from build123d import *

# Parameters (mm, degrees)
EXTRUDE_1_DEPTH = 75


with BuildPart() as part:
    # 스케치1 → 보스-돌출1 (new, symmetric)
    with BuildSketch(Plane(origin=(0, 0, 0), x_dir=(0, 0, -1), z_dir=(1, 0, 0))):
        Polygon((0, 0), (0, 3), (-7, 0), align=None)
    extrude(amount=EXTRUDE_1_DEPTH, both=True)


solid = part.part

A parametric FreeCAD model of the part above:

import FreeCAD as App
import Part
import Sketcher


def add_polygon(sketch, points):
    """Adds a closed chain of lines whose ends are joined by coincident constraints."""
    first, n = sketch.GeometryCount, len(points)
    for a, b in zip(points, points[1:] + points[:1]):
        sketch.addGeometry(Part.LineSegment(App.Vector(*a, 0), App.Vector(*b, 0)), False)
    for i in range(n):
        sketch.addConstraint(Sketcher.Constraint("Coincident", first + i, 2, first + (i + 1) % n, 1))

doc = App.newDocument("Part")
body = doc.addObject("PartDesign::Body", "Body")

# Sketch on YZ plane
sketch1 = body.newObject("Sketcher::SketchObject", "Sketch")
sketch1.AttachmentSupport = (doc.getObject("YZ_Plane"), [""])
sketch1.MapMode = "FlatFace"
add_polygon(sketch1, [(0, 0), (3, 0), (0, 7)])  # lines 0-2
sketch1.addConstraint(Sketcher.Constraint("Horizontal", 0))
sketch1.addConstraint(Sketcher.Constraint("Vertical", 2))
sketch1.addConstraint(Sketcher.Constraint("Coincident", 2, 2, -1, 1))
sketch1.addConstraint(Sketcher.Constraint("DistanceX", 0, 1, 0, 2, 3.0))
sketch1.addConstraint(Sketcher.Constraint("DistanceY", 2, 2, 2, 1, 7.0))
pad1 = body.newObject("PartDesign::Pad", "Pad")
pad1.Profile = sketch1
pad1.Length = 150
pad1.Midplane = True

doc.recompute()
